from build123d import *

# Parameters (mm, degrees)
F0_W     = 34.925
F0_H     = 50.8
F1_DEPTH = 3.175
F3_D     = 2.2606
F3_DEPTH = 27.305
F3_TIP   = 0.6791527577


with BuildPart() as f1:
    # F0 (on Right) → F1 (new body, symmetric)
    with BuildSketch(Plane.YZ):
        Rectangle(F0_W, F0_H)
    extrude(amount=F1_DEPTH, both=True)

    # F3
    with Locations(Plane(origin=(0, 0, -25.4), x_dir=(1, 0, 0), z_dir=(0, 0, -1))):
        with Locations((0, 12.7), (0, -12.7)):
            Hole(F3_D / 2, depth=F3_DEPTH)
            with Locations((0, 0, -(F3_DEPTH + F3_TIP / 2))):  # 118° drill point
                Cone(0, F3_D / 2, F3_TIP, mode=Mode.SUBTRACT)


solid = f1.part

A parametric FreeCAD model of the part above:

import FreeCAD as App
import Part
import Sketcher
Q = App.Units.Quantity


def add_polygon(sketch, points):
    """Adds a closed chain of lines whose ends are joined by coincident constraints."""
    first, n = sketch.GeometryCount, len(points)
    for a, b in zip(points, points[1:] + points[:1]):
        sketch.addGeometry(Part.LineSegment(App.Vector(*a, 0), App.Vector(*b, 0)), False)
    for i in range(n):
        sketch.addConstraint(Sketcher.Constraint("Coincident", first + i, 2, first + (i + 1) % n, 1))

doc = App.newDocument("Part")
body = doc.addObject("PartDesign::Body", "Body")

sketch1 = body.newObject("Sketcher::SketchObject", "Sketch")
sketch1.AttachmentSupport = (doc.getObject("YZ_Plane"), [""])
sketch1.MapMode = "FlatFace"
add_polygon(sketch1, [(-17, 25), (-17, -25), (17, -25), (17, 25)])
sketch1.addConstraint([
    Sketcher.Constraint("Vertical", 0),
    Sketcher.Constraint("Horizontal", 1),
    Sketcher.Constraint("Vertical", 2),
    Sketcher.Constraint("Horizontal", 3),
    Sketcher.Constraint("Symmetric", 0, 2, 2, 2, -1, 1),
    Sketcher.Constraint("DistanceY", 0, 2, 0, 1, Q("2 in")),
    Sketcher.Constraint("DistanceX", 1, 1, 1, 2, Q("1.375 in")),
])
pad1 = body.newObject("PartDesign::Pad", "Pad")
pad1.Profile = sketch1
pad1.Length = Q("0.25 in")
pad1.Midplane = True

sketch2 = body.newObject("Sketcher::SketchObject", "Sketch001")
sketch2.AttachmentSupport = (doc.getObject("XY_Plane"), [""])
sketch2.MapMode = "FlatFace"
sketch2.AttachmentOffset = App.Placement(App.Vector(0, 0, -1 * 25.4), App.Rotation())
sketch2.addGeometry([
    Part.Circle(App.Vector(0, -12.7, 0), App.Vector(0, 0, 1), 1.1),
    Part.Circle(App.Vector(0, 12.7, 0), App.Vector(0, 0, 1), 1.1),
], False)
sketch2.addConstraint([
    Sketcher.Constraint("Equal", 0, 1),
    Sketcher.Constraint("Symmetric", 0, 3, 1, 3, -1, 1),
    Sketcher.Constraint("PointOnObject", 0, 3, -2),
    Sketcher.Constraint("Diameter", 0, Q("0.089 in")),
    Sketcher.Constraint("DistanceY", 0, 3, 1, 3, Q("1 in")),
])
doc.recompute()
hole = body.newObject("PartDesign::Hole", "Hole")
hole.Profile = sketch2
hole.ThreadType = "None"
hole.Diameter = Q("0.089 in")
hole.DepthType = "Dimension"
hole.Depth = Q("1.075 in")
hole.DrillPoint = "Angled"
hole.DrillPointAngle = 118
hole.Reversed = True

doc.recompute()
